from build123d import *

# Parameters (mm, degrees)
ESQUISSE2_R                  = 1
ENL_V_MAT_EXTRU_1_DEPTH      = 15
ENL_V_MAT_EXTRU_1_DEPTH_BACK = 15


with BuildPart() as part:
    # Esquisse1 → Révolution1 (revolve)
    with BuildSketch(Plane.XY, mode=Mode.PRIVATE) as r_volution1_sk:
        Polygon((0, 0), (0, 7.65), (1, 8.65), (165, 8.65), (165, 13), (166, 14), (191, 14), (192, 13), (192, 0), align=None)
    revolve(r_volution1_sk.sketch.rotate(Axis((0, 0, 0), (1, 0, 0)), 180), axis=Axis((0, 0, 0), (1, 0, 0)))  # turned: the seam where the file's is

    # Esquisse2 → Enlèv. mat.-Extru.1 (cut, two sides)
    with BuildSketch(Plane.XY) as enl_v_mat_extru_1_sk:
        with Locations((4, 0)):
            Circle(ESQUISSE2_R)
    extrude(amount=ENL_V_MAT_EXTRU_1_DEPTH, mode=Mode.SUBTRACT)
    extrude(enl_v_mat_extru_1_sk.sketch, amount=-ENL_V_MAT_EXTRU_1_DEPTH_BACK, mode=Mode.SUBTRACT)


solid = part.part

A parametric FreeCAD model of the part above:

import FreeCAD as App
import Part
import Sketcher

V = App.Vector


def add_polygon(sketch, points):
    """Adds a closed chain of lines whose ends are joined by coincident constraints."""
    first, n = sketch.GeometryCount, len(points)
    for a, b in zip(points, points[1:] + points[:1]):
        sketch.addGeometry(Part.LineSegment(App.Vector(*a, 0), App.Vector(*b, 0)), False)
    for i in range(n):
        sketch.addConstraint(Sketcher.Constraint("Coincident", first + i, 2, first + (i + 1) % n, 1))

doc = App.newDocument("Part")
body = doc.addObject("PartDesign::Body", "Body")

# Sketch on XY plane
sketch1 = doc.addObject("Sketcher::SketchObject", "Sketch")
body.addObject(sketch1)
sketch1.AttachmentSupport = (doc.XY_Plane, [""])
sketch1.MapMode = "FlatFace"
add_polygon(sketch1, [(0, 7.65), (0, 0), (192, 0), (192, 13), (191, 14), (166, 14), (165, 13), (165, 8.65), (1, 8.65)])  # lines 0-8
sketch1.addConstraint(Sketcher.Constraint("Vertical", 0))
sketch1.addConstraint(Sketcher.Constraint("Horizontal", 1))
sketch1.addConstraint(Sketcher.Constraint("Vertical", 2))
sketch1.addConstraint(Sketcher.Constraint("Horizontal", 4))
sketch1.addConstraint(Sketcher.Constraint("Vertical", 6))
sketch1.addConstraint(Sketcher.Constraint("Horizontal", 7))
sketch1.addConstraint(Sketcher.Constraint("Coincident", 0, 2, -1, 1))
sketch1.addConstraint(Sketcher.Constraint("Perpendicular", 3, 5))
sketch1.addConstraint(Sketcher.Constraint("Parallel", 5, 8))
sketch1.addConstraint(Sketcher.Constraint("Horizontal", 2, 2, 5, 2))
sketch1.addConstraint(Sketcher.Constraint("Equal", 3, 5))
sketch1.addConstraint(Sketcher.Constraint("Equal", 5, 8))
sketch1.addConstraint(Sketcher.Constraint("DistanceX", 1, 1, 1, 2, 192.0))
sketch1.addConstraint(Sketcher.Constraint("DistanceX", 4, 2, 4, 1, 25.0))
sketch1.addConstraint(Sketcher.Constraint("DistanceX", 7, 2, 7, 1, 164.0))
sketch1.addConstraint(Sketcher.Constraint("DistanceY", 2, 1, 2, 2, 13.0))
sketch1.addConstraint(Sketcher.Constraint("DistanceY", 0, 2, 0, 1, 7.65))
revolution = doc.addObject("PartDesign::Revolution", "Revolution")
body.addObject(revolution)
revolution.Profile = sketch1
revolution.ReferenceAxis = (sketch1, ["H_Axis"])
revolution.Angle = 360

# Sketch on XY plane
sketch2 = doc.addObject("Sketcher::SketchObject", "Sketch001")
body.addObject(sketch2)
sketch2.AttachmentSupport = (doc.XY_Plane, [""])
sketch2.MapMode = "FlatFace"
sketch2.addGeometry(Part.Circle(V(4, 0, 0), V(0, 0, 1), 1), False)
sketch2.addConstraint(Sketcher.Constraint("PointOnObject", 0, 3, -1))
sketch2.addConstraint(Sketcher.Constraint("Diameter", 0, 2.0))
sketch2.addConstraint(Sketcher.Constraint("DistanceX", -1, 1, 0, 3, 4.0))
pocket1 = doc.addObject("PartDesign::Pocket", "Pocket")
body.addObject(pocket1)
pocket1.Profile = sketch2
pocket1.Type = "ThroughAll"
pocket1.Midplane = True

doc.recompute()
